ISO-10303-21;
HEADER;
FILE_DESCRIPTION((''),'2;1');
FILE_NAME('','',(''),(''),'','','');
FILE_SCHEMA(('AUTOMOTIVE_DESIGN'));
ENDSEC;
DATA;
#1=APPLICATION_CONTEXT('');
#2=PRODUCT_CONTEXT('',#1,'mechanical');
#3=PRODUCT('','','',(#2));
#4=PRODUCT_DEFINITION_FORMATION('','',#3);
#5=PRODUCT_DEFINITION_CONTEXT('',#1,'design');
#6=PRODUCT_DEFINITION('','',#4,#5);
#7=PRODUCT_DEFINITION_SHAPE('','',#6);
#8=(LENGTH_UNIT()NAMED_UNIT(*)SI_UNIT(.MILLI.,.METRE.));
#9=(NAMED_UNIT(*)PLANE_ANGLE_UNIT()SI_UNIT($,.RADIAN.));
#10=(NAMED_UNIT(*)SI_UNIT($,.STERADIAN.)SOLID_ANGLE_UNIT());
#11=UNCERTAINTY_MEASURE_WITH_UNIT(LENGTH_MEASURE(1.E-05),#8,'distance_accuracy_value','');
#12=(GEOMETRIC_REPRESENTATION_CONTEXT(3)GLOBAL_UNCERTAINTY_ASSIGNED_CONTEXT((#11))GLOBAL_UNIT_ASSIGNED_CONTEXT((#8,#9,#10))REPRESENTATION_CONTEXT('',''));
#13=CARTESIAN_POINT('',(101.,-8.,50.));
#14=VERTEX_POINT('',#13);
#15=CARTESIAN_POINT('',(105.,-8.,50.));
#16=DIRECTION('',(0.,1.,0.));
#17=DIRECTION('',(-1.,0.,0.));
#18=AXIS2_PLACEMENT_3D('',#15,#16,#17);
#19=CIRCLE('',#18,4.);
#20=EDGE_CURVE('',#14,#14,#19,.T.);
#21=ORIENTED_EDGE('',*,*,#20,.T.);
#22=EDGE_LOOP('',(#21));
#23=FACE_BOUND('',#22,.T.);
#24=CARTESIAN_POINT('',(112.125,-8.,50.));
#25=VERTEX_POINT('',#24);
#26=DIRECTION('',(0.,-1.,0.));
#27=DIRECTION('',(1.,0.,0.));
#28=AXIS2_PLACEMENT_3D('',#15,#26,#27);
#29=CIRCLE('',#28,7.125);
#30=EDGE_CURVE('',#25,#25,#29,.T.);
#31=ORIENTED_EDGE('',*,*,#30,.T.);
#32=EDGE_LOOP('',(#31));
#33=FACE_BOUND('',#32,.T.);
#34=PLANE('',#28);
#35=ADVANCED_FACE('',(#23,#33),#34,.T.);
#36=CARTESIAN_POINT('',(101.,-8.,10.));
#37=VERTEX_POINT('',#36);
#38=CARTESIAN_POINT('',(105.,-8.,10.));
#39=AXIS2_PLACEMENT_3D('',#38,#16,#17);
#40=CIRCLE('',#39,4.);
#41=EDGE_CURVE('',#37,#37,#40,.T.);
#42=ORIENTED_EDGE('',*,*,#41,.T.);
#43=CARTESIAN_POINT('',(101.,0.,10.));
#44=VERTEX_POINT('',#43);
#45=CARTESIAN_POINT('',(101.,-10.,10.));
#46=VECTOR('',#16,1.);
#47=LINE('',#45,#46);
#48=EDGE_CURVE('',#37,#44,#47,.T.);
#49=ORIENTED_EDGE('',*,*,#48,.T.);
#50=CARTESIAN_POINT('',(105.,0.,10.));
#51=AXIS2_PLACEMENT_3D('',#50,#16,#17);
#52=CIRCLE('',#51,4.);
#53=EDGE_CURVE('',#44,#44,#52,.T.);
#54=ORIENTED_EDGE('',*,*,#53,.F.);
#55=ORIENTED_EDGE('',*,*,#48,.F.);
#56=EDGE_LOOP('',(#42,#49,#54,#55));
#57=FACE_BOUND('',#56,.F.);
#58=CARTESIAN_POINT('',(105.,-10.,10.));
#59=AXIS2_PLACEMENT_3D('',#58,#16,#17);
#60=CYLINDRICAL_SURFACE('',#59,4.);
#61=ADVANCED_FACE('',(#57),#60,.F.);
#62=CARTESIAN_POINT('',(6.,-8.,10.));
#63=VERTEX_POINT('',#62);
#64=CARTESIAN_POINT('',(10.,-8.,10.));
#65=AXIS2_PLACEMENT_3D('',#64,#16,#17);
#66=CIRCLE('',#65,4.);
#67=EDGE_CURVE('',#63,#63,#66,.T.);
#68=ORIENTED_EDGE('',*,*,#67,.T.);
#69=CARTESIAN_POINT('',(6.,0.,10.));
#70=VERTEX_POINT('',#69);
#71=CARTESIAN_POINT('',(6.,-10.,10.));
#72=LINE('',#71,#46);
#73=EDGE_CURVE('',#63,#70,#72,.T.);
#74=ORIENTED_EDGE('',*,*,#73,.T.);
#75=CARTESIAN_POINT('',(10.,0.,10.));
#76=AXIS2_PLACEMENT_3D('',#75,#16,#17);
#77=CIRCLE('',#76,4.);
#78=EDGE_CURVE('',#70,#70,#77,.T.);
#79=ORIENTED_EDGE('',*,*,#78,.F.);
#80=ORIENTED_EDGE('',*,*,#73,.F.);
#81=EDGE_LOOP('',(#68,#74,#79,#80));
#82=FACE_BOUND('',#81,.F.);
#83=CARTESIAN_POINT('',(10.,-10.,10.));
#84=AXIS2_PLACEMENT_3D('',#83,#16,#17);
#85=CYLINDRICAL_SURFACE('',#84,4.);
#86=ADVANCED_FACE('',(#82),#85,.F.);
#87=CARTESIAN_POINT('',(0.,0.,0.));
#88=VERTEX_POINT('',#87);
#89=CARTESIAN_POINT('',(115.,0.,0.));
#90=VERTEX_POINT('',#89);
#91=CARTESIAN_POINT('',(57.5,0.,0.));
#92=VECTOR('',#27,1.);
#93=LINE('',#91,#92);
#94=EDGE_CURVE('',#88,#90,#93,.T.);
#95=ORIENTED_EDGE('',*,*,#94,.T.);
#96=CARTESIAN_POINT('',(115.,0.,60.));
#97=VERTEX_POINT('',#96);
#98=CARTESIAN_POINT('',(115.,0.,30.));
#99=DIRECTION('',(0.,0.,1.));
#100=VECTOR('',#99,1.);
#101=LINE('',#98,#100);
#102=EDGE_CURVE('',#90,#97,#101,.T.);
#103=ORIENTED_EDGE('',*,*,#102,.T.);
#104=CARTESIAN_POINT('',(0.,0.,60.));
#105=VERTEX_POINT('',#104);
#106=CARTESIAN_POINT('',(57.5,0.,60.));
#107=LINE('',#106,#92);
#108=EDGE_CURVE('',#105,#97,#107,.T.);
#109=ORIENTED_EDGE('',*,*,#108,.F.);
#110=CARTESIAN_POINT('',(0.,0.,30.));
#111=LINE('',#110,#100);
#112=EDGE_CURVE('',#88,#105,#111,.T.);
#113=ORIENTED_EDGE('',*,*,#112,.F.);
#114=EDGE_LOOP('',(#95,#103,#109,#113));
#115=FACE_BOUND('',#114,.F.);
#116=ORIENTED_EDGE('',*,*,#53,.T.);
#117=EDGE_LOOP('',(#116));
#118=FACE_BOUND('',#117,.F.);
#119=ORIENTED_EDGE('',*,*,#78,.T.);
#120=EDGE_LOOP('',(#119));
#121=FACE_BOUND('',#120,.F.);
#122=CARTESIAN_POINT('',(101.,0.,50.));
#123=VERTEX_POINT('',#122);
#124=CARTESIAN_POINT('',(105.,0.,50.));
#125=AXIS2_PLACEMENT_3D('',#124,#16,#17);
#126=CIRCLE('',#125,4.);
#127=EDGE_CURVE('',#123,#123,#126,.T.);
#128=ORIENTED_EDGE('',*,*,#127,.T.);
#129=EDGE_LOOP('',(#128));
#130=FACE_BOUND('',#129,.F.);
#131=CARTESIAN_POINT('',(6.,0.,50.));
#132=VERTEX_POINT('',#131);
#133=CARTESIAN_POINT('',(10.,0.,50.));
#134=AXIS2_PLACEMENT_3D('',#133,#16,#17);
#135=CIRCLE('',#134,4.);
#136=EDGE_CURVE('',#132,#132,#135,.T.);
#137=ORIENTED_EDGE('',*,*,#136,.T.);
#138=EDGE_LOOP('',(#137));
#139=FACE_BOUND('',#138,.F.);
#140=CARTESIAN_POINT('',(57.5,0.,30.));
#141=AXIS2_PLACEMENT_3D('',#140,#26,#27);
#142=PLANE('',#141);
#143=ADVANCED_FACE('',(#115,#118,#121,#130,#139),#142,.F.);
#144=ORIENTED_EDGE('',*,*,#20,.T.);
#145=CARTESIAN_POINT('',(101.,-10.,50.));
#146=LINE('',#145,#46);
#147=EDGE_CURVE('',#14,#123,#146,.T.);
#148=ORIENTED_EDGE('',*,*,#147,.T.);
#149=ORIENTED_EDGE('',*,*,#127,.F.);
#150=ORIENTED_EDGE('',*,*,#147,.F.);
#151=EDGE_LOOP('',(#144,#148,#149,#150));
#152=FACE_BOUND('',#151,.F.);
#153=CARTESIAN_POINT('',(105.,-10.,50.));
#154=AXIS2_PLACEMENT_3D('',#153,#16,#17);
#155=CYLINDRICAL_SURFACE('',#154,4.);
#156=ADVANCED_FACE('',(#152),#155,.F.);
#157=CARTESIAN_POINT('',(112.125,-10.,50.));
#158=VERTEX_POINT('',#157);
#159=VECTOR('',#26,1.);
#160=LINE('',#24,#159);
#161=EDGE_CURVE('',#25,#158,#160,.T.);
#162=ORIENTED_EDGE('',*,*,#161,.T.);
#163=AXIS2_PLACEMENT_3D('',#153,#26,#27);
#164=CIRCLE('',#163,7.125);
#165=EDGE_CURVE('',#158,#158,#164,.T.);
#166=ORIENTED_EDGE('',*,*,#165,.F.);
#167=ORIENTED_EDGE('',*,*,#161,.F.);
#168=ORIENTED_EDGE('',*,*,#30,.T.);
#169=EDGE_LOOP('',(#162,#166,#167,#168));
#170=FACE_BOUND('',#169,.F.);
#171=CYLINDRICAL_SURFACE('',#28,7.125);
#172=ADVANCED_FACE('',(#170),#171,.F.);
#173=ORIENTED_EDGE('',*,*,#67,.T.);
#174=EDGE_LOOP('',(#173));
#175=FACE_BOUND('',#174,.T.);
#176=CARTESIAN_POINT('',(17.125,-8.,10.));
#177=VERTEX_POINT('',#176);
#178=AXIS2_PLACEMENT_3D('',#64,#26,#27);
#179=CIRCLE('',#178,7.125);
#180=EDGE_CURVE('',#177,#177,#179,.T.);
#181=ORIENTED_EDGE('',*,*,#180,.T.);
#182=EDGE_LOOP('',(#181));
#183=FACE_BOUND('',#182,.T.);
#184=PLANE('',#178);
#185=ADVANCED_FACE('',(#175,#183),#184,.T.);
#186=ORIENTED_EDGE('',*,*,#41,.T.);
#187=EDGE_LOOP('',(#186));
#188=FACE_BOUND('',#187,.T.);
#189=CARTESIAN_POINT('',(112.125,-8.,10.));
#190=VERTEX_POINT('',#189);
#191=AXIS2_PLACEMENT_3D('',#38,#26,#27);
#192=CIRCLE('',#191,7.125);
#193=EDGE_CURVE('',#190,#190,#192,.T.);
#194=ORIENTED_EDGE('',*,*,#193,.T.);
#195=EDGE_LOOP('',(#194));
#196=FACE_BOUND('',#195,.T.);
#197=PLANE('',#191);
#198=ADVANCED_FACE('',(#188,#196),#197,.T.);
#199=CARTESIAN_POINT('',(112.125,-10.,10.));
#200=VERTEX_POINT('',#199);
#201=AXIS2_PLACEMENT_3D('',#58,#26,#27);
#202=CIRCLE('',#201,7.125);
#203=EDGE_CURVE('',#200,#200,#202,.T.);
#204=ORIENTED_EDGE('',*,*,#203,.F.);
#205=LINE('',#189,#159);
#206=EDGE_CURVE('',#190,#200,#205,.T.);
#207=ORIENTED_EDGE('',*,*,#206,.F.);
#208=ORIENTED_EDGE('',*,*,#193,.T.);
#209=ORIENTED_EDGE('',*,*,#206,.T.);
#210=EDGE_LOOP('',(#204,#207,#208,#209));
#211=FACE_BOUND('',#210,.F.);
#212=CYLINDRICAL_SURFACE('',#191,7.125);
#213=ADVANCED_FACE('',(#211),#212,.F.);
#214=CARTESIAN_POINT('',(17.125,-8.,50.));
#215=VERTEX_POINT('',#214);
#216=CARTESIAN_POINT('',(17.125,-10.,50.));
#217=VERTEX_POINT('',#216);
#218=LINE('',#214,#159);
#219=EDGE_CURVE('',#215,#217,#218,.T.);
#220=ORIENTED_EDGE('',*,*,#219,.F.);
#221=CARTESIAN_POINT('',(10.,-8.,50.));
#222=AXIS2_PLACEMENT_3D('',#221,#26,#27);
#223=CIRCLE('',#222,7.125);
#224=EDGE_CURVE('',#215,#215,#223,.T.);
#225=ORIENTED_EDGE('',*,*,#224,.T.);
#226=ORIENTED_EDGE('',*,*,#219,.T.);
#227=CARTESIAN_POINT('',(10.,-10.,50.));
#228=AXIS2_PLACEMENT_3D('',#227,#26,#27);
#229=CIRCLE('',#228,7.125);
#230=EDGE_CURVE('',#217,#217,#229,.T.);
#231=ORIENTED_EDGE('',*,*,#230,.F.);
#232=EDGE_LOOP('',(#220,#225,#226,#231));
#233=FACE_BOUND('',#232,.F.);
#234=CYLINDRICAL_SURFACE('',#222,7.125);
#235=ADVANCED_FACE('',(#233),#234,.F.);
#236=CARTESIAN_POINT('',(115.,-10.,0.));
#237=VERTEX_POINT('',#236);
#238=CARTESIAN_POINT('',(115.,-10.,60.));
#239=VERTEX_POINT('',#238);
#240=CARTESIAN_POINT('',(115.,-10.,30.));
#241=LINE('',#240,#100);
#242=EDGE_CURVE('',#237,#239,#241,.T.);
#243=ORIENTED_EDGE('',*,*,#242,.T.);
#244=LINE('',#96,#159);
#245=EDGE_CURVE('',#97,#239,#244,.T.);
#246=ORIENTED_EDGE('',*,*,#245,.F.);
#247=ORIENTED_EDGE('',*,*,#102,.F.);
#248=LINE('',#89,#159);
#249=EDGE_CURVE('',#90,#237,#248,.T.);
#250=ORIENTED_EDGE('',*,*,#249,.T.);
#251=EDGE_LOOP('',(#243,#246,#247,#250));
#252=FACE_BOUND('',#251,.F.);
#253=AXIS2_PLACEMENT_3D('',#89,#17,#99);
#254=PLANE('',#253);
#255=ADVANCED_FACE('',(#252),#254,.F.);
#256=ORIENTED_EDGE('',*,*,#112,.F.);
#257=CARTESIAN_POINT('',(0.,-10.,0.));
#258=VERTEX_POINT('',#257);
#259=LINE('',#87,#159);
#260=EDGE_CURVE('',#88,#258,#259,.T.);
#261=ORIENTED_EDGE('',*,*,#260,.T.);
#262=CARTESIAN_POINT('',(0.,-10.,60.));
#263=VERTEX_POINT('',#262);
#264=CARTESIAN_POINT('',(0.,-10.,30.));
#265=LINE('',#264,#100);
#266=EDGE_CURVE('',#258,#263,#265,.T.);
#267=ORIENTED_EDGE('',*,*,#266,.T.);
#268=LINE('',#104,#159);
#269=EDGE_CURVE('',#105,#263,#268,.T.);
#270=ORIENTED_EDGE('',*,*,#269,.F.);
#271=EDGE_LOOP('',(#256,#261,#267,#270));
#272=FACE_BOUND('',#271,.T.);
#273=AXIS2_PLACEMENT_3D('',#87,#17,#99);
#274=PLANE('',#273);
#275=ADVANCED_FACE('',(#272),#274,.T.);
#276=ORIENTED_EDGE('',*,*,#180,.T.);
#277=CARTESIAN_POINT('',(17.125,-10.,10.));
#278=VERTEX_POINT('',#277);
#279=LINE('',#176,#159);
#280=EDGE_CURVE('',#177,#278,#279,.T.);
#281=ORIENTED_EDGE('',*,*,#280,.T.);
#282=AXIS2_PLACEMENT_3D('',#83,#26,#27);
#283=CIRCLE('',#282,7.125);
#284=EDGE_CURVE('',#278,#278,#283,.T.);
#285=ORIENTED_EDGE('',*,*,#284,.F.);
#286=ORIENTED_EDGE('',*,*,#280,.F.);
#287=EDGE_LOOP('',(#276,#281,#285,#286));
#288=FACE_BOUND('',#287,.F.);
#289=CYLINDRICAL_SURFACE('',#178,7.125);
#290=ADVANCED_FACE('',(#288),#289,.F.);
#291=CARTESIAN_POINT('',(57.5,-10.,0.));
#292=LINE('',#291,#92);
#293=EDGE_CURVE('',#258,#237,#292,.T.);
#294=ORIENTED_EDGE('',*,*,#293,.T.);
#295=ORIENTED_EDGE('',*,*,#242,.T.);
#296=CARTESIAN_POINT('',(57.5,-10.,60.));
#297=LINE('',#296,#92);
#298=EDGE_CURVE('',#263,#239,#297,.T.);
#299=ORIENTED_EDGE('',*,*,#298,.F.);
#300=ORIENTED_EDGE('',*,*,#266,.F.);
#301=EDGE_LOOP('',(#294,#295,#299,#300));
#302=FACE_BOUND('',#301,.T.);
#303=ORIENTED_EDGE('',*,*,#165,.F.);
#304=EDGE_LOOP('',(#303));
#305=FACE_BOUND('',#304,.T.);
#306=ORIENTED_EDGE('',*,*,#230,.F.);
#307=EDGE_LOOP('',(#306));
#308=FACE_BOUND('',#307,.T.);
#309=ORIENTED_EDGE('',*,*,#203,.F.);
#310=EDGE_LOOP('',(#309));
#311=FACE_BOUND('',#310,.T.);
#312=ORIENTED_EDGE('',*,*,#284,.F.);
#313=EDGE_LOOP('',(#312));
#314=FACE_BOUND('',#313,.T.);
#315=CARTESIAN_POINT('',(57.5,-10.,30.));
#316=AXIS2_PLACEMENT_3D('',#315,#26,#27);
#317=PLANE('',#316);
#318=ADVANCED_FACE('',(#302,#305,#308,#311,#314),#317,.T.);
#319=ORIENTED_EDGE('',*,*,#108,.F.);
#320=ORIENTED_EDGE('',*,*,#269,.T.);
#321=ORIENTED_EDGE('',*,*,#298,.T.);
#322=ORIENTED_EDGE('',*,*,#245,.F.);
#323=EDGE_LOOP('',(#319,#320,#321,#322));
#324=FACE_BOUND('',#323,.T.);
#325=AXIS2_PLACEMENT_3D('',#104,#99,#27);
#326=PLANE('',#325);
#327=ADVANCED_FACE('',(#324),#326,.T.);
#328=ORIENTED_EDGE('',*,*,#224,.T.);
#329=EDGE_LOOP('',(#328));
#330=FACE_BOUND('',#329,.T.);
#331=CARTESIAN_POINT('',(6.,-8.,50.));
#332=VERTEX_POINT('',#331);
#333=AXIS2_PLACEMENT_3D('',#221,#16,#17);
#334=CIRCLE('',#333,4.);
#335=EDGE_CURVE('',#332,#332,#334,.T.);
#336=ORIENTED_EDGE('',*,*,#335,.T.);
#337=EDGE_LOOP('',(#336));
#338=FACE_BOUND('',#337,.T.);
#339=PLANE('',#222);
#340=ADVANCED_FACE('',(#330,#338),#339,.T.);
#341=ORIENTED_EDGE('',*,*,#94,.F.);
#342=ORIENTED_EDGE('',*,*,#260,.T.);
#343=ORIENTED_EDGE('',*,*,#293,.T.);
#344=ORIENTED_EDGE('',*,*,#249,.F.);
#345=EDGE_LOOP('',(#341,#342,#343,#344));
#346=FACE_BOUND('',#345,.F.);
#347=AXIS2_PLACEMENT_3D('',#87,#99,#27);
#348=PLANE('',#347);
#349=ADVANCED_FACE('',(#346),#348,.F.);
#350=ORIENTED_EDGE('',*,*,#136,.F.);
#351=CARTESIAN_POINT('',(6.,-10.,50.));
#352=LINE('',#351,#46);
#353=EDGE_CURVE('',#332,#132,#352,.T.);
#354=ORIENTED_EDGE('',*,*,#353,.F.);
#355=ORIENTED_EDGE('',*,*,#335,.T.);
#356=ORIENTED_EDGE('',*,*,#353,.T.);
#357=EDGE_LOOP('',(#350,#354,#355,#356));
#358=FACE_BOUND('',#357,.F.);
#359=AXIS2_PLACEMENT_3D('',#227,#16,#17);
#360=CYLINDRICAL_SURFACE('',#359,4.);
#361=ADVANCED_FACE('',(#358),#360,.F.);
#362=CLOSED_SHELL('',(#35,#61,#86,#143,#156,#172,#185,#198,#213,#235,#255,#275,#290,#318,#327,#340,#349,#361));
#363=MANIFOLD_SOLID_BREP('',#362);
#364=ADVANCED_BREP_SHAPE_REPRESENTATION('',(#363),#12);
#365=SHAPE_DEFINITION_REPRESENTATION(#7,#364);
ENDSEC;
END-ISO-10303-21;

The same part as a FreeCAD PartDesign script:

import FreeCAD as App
import Part
import Sketcher
Q = App.Units.Quantity

doc = App.newDocument("Part")
body = doc.addObject("PartDesign::Body", "Body")

sketch1 = doc.addObject("Sketcher::SketchObject", "Sketch")
body.addObject(sketch1)
sketch1.AttachmentSupport = (doc.XZ_Plane, [""])
sketch1.MapMode = "FlatFace"
sketch1.addGeometry([
    Part.LineSegment(App.Vector(0, 60, 0), App.Vector(0, 0, 0)),
    Part.LineSegment(App.Vector(0, 0, 0), App.Vector(115, 0, 0)),
    Part.LineSegment(App.Vector(115, 0, 0), App.Vector(115, 60, 0)),
    Part.LineSegment(App.Vector(115, 60, 0), App.Vector(0, 60, 0)),
], False)
sketch1.addConstraint([
    Sketcher.Constraint("Coincident", 0, 2, 1, 1),
    Sketcher.Constraint("Coincident", 1, 2, 2, 1),
    Sketcher.Constraint("Coincident", 2, 2, 3, 1),
    Sketcher.Constraint("Coincident", 3, 2, 0, 1),
    Sketcher.Constraint("Vertical", 0),
    Sketcher.Constraint("Horizontal", 1),
    Sketcher.Constraint("Vertical", 2),
    Sketcher.Constraint("Horizontal", 3),
    Sketcher.Constraint("Coincident", 0, 2, -1, 1),
    Sketcher.Constraint("DistanceX", 1, 1, 1, 2, Q("115 mm")),
    Sketcher.Constraint("DistanceY", 0, 2, 0, 1, Q("60 mm")),
])
pad1 = doc.addObject("PartDesign::Pad", "Pad")
body.addObject(pad1)
pad1.Profile = sketch1
pad1.Length = 10

sketch2 = doc.addObject("Sketcher::SketchObject", "Sketch001")
body.addObject(sketch2)
sketch2.AttachmentSupport = (doc.XZ_Plane, [""])
sketch2.MapMode = "FlatFace"
sketch2.AttachmentOffset = App.Placement(App.Vector(0, 0, 10), App.Rotation())
sketch2.addGeometry([
    Part.Circle(App.Vector(10, 50, 0), App.Vector(0, 0, 1), 4),
    Part.Circle(App.Vector(105, 50, 0), App.Vector(0, 0, 1), 4),
    Part.Circle(App.Vector(105, 10, 0), App.Vector(0, 0, 1), 4),
    Part.Circle(App.Vector(10, 10, 0), App.Vector(0, 0, 1), 4),
], False)
sketch2.addConstraint([
    Sketcher.Constraint("Equal", 0, 1),
    Sketcher.Constraint("Equal", 1, 2),
    Sketcher.Constraint("Equal", 2, 3),
    Sketcher.Constraint("Horizontal", 0, 3, 1, 3),
    Sketcher.Constraint("Horizontal", 2, 3, 3, 3),
    Sketcher.Constraint("Vertical", 1, 3, 2, 3),
    Sketcher.Constraint("Vertical", 0, 3, 3, 3),
    Sketcher.Constraint("Diameter", 0, Q("8 mm")),
    Sketcher.Constraint("DistanceX", -1, 1, 0, 3, Q("10 mm")),
    Sketcher.Constraint("DistanceY", -1, 1, 0, 3, Q("50 mm")),
    Sketcher.Constraint("DistanceX", -1, 1, 1, 3, Q("105 mm")),
    Sketcher.Constraint("DistanceY", -1, 1, 2, 3, Q("10 mm")),
])
doc.recompute()
hole = doc.addObject("PartDesign::Hole", "Hole")
body.addObject(hole)
hole.Profile = sketch2
hole.ThreadType = "None"
hole.Diameter = 8
hole.DepthType = "Dimension"
hole.Depth = 10
hole.DrillPoint = "Flat"
hole.HoleCutType = "Counterbore"
hole.HoleCutDiameter = 14.25
hole.HoleCutDepth = 2

doc.recompute()
